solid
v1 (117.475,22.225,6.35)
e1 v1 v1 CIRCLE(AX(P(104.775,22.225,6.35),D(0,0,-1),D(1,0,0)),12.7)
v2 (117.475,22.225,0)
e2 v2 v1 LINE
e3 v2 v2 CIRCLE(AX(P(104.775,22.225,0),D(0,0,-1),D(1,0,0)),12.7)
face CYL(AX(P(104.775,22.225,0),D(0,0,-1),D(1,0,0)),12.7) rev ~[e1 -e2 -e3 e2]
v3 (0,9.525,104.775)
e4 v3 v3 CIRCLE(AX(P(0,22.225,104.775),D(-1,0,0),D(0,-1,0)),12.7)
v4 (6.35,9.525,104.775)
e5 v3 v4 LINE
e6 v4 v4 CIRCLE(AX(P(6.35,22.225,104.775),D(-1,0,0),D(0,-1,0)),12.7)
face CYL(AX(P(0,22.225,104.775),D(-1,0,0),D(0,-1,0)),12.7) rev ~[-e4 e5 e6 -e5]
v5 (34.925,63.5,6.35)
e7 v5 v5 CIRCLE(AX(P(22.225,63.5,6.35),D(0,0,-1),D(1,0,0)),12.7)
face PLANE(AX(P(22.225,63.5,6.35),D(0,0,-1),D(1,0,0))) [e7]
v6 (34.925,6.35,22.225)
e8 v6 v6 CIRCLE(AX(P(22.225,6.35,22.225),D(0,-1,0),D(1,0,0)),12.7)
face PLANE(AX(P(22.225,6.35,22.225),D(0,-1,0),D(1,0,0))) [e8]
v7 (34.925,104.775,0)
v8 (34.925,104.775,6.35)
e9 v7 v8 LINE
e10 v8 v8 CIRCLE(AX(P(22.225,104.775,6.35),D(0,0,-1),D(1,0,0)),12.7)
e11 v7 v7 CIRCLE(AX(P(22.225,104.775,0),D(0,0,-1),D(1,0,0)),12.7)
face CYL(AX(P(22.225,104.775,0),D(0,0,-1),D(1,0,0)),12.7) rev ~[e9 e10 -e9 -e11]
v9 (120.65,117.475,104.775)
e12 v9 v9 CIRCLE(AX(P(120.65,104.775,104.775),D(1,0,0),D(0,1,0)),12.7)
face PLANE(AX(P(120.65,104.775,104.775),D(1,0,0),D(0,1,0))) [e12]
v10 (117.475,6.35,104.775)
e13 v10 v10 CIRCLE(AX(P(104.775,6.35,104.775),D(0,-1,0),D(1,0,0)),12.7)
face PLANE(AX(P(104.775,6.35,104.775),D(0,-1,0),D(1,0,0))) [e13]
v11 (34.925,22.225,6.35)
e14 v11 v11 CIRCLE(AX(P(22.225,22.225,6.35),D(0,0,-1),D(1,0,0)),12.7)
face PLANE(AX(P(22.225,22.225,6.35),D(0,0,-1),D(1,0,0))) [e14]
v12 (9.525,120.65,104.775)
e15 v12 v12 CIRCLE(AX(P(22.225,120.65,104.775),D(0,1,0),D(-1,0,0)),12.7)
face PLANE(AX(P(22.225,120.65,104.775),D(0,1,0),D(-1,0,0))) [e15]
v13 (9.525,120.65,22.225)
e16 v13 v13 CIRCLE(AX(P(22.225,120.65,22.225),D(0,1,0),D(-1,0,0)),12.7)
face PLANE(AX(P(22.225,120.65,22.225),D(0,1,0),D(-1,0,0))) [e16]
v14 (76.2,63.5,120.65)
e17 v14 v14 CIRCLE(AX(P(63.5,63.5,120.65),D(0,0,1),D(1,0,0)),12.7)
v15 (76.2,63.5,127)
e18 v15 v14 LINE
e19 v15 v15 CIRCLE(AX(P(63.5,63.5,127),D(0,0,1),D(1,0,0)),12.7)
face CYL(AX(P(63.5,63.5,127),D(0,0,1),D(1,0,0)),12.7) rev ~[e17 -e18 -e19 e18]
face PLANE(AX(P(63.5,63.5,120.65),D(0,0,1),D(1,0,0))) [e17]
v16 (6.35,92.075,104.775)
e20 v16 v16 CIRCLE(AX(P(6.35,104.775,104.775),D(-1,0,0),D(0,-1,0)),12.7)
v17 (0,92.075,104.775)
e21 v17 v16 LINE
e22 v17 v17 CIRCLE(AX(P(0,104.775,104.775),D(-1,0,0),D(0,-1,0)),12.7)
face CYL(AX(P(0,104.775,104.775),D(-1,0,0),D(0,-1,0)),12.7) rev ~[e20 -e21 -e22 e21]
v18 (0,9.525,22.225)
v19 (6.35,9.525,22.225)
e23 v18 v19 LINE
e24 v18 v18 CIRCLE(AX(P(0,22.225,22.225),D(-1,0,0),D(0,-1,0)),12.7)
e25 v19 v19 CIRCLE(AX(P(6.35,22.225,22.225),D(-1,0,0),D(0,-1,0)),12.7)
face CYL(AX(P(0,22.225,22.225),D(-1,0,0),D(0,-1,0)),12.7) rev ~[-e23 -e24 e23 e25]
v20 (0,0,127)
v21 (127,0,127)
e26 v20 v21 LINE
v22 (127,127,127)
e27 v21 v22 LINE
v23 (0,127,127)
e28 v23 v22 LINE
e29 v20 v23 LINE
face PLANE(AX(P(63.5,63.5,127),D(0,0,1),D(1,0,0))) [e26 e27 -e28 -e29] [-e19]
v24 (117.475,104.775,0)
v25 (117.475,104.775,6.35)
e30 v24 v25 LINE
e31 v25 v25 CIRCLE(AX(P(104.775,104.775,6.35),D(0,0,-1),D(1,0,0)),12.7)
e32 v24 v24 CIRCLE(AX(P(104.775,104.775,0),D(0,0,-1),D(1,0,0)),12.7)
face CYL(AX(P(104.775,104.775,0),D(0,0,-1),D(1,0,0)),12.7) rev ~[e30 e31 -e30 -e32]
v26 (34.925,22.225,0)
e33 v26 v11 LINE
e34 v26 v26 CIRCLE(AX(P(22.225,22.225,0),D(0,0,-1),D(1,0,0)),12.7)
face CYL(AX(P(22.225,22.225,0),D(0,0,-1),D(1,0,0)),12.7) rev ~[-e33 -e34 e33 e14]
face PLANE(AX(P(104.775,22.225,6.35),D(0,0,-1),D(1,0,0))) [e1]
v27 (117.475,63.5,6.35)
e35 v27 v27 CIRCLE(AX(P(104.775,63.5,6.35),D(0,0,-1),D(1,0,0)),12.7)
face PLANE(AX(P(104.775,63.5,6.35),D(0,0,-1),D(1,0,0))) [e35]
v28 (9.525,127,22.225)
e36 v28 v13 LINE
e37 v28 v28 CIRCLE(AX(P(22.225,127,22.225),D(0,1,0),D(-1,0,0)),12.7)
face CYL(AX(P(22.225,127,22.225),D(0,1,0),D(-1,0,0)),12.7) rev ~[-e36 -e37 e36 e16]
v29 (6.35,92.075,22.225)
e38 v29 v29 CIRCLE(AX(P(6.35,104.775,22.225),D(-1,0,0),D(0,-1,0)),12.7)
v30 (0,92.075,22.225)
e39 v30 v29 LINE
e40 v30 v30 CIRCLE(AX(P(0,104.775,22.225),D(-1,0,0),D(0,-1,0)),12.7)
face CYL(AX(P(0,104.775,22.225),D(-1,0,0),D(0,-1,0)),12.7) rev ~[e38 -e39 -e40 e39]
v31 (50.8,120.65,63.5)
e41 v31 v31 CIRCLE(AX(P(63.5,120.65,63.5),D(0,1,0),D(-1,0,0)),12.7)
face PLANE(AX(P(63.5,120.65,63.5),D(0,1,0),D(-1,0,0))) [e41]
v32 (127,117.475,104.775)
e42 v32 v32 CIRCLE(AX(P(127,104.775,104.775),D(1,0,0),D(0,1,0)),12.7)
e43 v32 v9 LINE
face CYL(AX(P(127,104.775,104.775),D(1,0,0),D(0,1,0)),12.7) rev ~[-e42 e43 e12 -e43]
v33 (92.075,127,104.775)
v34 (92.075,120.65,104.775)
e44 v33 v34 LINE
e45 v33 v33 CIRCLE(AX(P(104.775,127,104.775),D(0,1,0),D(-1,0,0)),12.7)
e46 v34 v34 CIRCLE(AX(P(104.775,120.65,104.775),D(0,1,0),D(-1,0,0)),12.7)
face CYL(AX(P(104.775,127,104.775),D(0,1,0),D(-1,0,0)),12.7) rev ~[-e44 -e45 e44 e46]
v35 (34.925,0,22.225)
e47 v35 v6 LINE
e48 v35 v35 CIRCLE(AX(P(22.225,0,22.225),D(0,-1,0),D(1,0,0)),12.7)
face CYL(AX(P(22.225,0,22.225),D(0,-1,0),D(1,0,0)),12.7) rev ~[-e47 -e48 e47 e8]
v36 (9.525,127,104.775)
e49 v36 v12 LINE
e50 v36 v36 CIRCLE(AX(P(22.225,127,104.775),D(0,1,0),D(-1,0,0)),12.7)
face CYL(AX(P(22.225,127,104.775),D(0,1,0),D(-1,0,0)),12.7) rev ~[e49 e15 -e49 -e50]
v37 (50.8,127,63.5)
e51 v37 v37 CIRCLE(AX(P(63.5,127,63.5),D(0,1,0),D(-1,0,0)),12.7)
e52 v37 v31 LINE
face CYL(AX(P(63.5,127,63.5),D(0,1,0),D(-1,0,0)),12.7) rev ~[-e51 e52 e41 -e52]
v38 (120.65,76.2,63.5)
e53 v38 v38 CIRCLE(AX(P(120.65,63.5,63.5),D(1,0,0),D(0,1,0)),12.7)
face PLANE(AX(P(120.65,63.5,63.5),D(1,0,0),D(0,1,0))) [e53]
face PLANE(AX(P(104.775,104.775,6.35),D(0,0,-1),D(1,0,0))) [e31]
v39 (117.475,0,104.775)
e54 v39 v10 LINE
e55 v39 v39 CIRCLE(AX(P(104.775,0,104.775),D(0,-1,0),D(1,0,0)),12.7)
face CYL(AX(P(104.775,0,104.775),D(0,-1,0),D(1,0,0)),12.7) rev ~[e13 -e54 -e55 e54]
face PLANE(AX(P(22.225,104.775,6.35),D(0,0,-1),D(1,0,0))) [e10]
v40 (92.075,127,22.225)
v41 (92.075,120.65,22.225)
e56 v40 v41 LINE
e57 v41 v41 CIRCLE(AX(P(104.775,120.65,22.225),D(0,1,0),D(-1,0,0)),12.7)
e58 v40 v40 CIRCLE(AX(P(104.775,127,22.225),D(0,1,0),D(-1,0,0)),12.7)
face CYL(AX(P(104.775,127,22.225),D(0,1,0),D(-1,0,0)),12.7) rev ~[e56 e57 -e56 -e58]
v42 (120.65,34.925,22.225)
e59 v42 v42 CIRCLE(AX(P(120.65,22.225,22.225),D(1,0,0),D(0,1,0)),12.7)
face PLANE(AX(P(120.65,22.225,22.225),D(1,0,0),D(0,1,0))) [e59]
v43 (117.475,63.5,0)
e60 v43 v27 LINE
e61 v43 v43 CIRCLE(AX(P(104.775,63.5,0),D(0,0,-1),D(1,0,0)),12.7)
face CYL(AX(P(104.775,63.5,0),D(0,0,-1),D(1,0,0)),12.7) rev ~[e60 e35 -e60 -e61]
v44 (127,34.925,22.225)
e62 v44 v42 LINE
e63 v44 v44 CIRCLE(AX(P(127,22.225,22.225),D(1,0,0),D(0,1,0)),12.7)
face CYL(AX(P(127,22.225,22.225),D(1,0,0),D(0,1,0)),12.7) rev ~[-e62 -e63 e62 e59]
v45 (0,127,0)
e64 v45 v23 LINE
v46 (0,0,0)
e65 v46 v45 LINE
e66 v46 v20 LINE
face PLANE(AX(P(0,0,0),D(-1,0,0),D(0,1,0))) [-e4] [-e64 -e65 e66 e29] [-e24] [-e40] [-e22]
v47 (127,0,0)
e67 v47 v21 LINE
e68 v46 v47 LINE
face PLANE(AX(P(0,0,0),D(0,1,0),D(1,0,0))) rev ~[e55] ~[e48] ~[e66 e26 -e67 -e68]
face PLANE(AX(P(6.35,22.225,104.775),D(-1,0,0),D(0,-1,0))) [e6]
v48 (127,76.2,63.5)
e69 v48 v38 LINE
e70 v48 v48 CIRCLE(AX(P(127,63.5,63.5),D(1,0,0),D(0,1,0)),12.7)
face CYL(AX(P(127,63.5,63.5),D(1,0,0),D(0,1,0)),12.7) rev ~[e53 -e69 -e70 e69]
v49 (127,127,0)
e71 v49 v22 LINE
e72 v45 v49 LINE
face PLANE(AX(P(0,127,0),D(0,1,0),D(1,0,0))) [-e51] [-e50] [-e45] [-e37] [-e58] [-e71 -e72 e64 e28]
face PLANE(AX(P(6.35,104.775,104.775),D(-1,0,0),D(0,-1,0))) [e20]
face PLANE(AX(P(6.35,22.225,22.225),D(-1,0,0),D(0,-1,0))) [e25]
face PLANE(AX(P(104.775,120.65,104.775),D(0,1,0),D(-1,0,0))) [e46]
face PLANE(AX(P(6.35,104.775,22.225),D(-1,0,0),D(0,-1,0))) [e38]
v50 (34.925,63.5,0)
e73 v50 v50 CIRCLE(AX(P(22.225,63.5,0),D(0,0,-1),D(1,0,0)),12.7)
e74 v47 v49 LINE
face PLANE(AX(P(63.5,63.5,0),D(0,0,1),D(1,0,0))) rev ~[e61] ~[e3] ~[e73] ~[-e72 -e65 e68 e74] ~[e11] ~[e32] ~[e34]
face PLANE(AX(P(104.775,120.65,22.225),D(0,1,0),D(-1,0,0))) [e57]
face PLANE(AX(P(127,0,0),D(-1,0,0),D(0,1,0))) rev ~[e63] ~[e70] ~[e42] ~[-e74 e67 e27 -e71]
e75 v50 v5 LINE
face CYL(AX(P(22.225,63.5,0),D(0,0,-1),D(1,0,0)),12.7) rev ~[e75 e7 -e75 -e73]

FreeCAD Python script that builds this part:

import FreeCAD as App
import Part
import Sketcher

V = App.Vector
Q = App.Units.Quantity


def add_polygon(sketch, points):
    """Adds a closed chain of lines whose ends are joined by coincident constraints."""
    first, n = sketch.GeometryCount, len(points)
    for a, b in zip(points, points[1:] + points[:1]):
        sketch.addGeometry(Part.LineSegment(App.Vector(*a, 0), App.Vector(*b, 0)), False)
    for i in range(n):
        sketch.addConstraint(Sketcher.Constraint("Coincident", first + i, 2, first + (i + 1) % n, 1))

doc = App.newDocument("Part")
body = doc.addObject("PartDesign::Body", "Body")

# Sketch on XY plane
sketch1 = doc.addObject("Sketcher::SketchObject", "Sketch")
body.addObject(sketch1)
sketch1.AttachmentSupport = (doc.XY_Plane, [""])
sketch1.MapMode = "FlatFace"
add_polygon(sketch1, [(0, 127), (0, 0), (127, 0), (127, 127)])  # lines 0-3
sketch1.addConstraint([
    Sketcher.Constraint("Vertical", 0),
    Sketcher.Constraint("Horizontal", 1),
    Sketcher.Constraint("Vertical", 2),
    Sketcher.Constraint("Horizontal", 3),
    Sketcher.Constraint("Coincident", 0, 2, -1, 1),
    Sketcher.Constraint("Equal", 3, 0),
    Sketcher.Constraint("DistanceX", 1, 1, 1, 2, Q("5 in")),
])
pad1 = doc.addObject("PartDesign::Pad", "Pad")
body.addObject(pad1)
pad1.Profile = sketch1
pad1.Length = Q("5 in")

# Sketch on XY plane
sketch2 = doc.addObject("Sketcher::SketchObject", "Sketch001")
body.addObject(sketch2)
sketch2.AttachmentSupport = (doc.XY_Plane, [""])
sketch2.MapMode = "FlatFace"
sketch2.AttachmentOffset = App.Placement(V(0, 0, 5 * 25.4), App.Rotation())
sketch2.addGeometry(Part.Circle(V(64, 64, 0), V(0, 0, 1), 13), False)
sketch2.addConstraint([
    Sketcher.Constraint("Diameter", 0, Q("1 in")),
    Sketcher.Constraint("DistanceX", -1, 1, 0, 3, Q("2.5 in")),
    Sketcher.Constraint("DistanceY", -1, 1, 0, 3, Q("2.5 in")),
])
pocket1 = doc.addObject("PartDesign::Pocket", "Pocket")
body.addObject(pocket1)
pocket1.Profile = sketch2
pocket1.Length = Q("0.25 in")

# Sketch on XZ plane
sketch3 = doc.addObject("Sketcher::SketchObject", "Sketch002")
body.addObject(sketch3)
sketch3.AttachmentSupport = (doc.XZ_Plane, [""])
sketch3.MapMode = "FlatFace"
sketch3.addGeometry([
    Part.Circle(V(22, 22, 0), V(0, 0, 1), 13),
    Part.Circle(V(105, 105, 0), V(0, 0, 1), 13),
], False)
sketch3.addConstraint([
    Sketcher.Constraint("Equal", 0, 1),
    Sketcher.Constraint("Diameter", 0, Q("1 in")),
    Sketcher.Constraint("DistanceX", 0, 3, 1, 3, Q("3.25 in")),
    Sketcher.Constraint("DistanceY", 0, 3, 1, 3, Q("3.25 in")),
    Sketcher.Constraint("DistanceX", -1, 1, 0, 3, Q("0.875 in")),
    Sketcher.Constraint("DistanceY", -1, 1, 0, 3, Q("0.875 in")),
])
pocket2 = doc.addObject("PartDesign::Pocket", "Pocket001")
body.addObject(pocket2)
pocket2.Profile = sketch3
pocket2.Length = Q("0.25 in")

# Sketch on YZ plane
sketch4 = doc.addObject("Sketcher::SketchObject", "Sketch003")
body.addObject(sketch4)
sketch4.AttachmentSupport = (doc.YZ_Plane, [""])
sketch4.MapMode = "FlatFace"
sketch4.AttachmentOffset = App.Placement(V(0, 0, 5 * 25.4), App.Rotation())
sketch4.addGeometry([
    Part.Circle(V(22, 22, 0), V(0, 0, 1), 13),
    Part.Circle(V(64, 64, 0), V(0, 0, 1), 13),
    Part.Circle(V(105, 105, 0), V(0, 0, 1), 13),
], False)
sketch4.addConstraint([
    Sketcher.Constraint("Equal", 0, 1),
    Sketcher.Constraint("Equal", 1, 2),
    Sketcher.Constraint("Diameter", 0, Q("1 in")),
    Sketcher.Constraint("DistanceX", -1, 1, 1, 3, Q("2.5 in")),
    Sketcher.Constraint("DistanceY", -1, 1, 1, 3, Q("2.5 in")),
    Sketcher.Constraint("DistanceX", 0, 3, 2, 3, Q("3.25 in")),
    Sketcher.Constraint("DistanceY", 0, 3, 2, 3, Q("3.25 in")),
    Sketcher.Constraint("DistanceX", -1, 1, 0, 3, Q("0.875 in")),
    Sketcher.Constraint("DistanceY", -1, 1, 0, 3, Q("0.875 in")),
])
pocket3 = doc.addObject("PartDesign::Pocket", "Pocket002")
body.addObject(pocket3)
pocket3.Profile = sketch4
pocket3.Length = Q("0.25 in")

# Sketch on XZ plane
sketch5 = doc.addObject("Sketcher::SketchObject", "Sketch004")
body.addObject(sketch5)
sketch5.AttachmentSupport = (doc.XZ_Plane, [""])
sketch5.MapMode = "FlatFace"
sketch5.AttachmentOffset = App.Placement(V(0, 0, -5 * 25.4), App.Rotation())
sketch5.addGeometry([
    Part.Circle(V(64, 64, 0), V(0, 0, 1), 13),  # 0
    Part.Circle(V(22, 105, 0), V(0, 0, 1), 13),  # 1
    Part.Circle(V(105, 105, 0), V(0, 0, 1), 13),  # 2
    Part.Circle(V(105, 22, 0), V(0, 0, 1), 13),  # 3
    Part.Circle(V(22, 22, 0), V(0, 0, 1), 13),  # 4
], False)
sketch5.addConstraint([
    Sketcher.Constraint("Equal", 0, 1),
    Sketcher.Constraint("Equal", 1, 2),
    Sketcher.Constraint("Equal", 2, 3),
    Sketcher.Constraint("Equal", 3, 4),
    Sketcher.Constraint("Horizontal", 1, 3, 2, 3),
    Sketcher.Constraint("Horizontal", 3, 3, 4, 3),
    Sketcher.Constraint("Vertical", 2, 3, 3, 3),
    Sketcher.Constraint("Vertical", 1, 3, 4, 3),
    Sketcher.Constraint("Diameter", 0, Q("1 in")),
    Sketcher.Constraint("DistanceX", -1, 1, 0, 3, Q("2.5 in")),
    Sketcher.Constraint("DistanceY", -1, 1, 0, 3, Q("2.5 in")),
    Sketcher.Constraint("DistanceX", 1, 3, 2, 3, Q("3.25 in")),
    Sketcher.Constraint("DistanceY", 3, 3, 2, 3, Q("3.25 in")),
    Sketcher.Constraint("DistanceX", -1, 1, 1, 3, Q("0.875 in")),
    Sketcher.Constraint("DistanceY", -1, 1, 1, 3, Q("4.125 in")),
])
pocket4 = doc.addObject("PartDesign::Pocket", "Pocket003")
body.addObject(pocket4)
pocket4.Profile = sketch5
pocket4.Length = Q("0.25 in")
pocket4.Reversed = True

# Sketch on YZ plane
sketch6 = doc.addObject("Sketcher::SketchObject", "Sketch005")
body.addObject(sketch6)
sketch6.AttachmentSupport = (doc.YZ_Plane, [""])
sketch6.MapMode = "FlatFace"
sketch6.addGeometry([
    Part.Circle(V(105, 105, 0), V(0, 0, 1), 13),
    Part.Circle(V(22, 105, 0), V(0, 0, 1), 13),
    Part.Circle(V(22, 22, 0), V(0, 0, 1), 13),
    Part.Circle(V(105, 22, 0), V(0, 0, 1), 13),
], False)
sketch6.addConstraint([
    Sketcher.Constraint("Equal", 0, 1),
    Sketcher.Constraint("Equal", 1, 2),
    Sketcher.Constraint("Equal", 2, 3),
    Sketcher.Constraint("Horizontal", 0, 3, 1, 3),
    Sketcher.Constraint("Horizontal", 2, 3, 3, 3),
    Sketcher.Constraint("Vertical", 1, 3, 2, 3),
    Sketcher.Constraint("Vertical", 0, 3, 3, 3),
    Sketcher.Constraint("Diameter", 0, Q("1 in")),
    Sketcher.Constraint("DistanceX", 1, 3, 0, 3, Q("3.25 in")),
    Sketcher.Constraint("DistanceY", 2, 3, 1, 3, Q("3.25 in")),
    Sketcher.Constraint("DistanceX", -1, 1, 0, 3, Q("4.125 in")),
    Sketcher.Constraint("DistanceY", -1, 1, 0, 3, Q("4.125 in")),
])
pocket5 = doc.addObject("PartDesign::Pocket", "Pocket004")
body.addObject(pocket5)
pocket5.Profile = sketch6
pocket5.Length = Q("0.25 in")
pocket5.Reversed = True

# Sketch on XY plane
sketch7 = doc.addObject("Sketcher::SketchObject", "Sketch006")
body.addObject(sketch7)
sketch7.AttachmentSupport = (doc.XY_Plane, [""])
sketch7.MapMode = "FlatFace"
sketch7.addGeometry([
    Part.Circle(V(105, 22, 0), V(0, 0, 1), 13),  # 0
    Part.Circle(V(105, 64, 0), V(0, 0, 1), 13),  # 1
    Part.Circle(V(105, 105, 0), V(0, 0, 1), 13),  # 2
    Part.Circle(V(22, 105, 0), V(0, 0, 1), 13),  # 3
    Part.Circle(V(22, 64, 0), V(0, 0, 1), 13),  # 4
    Part.Circle(V(22, 22, 0), V(0, 0, 1), 13),  # 5
], False)
sketch7.addConstraint([
    Sketcher.Constraint("Equal", 0, 1),
    Sketcher.Constraint("Equal", 1, 2),
    Sketcher.Constraint("Equal", 2, 3),
    Sketcher.Constraint("Equal", 3, 4),
    Sketcher.Constraint("Equal", 4, 5),
    Sketcher.Constraint("Horizontal", 2, 3, 3, 3),
    Sketcher.Constraint("Horizontal", 1, 3, 4, 3),
    Sketcher.Constraint("Horizontal", 0, 3, 5, 3),
    Sketcher.Constraint("Vertical", 0, 3, 1, 3),
    Sketcher.Constraint("Vertical", 1, 3, 2, 3),
    Sketcher.Constraint("Vertical", 3, 3, 4, 3),
    Sketcher.Constraint("Vertical", 4, 3, 5, 3),
    Sketcher.Constraint("Diameter", 0, Q("1 in")),
    Sketcher.Constraint("DistanceY", -1, 1, 1, 3, Q("2.5 in")),
    Sketcher.Constraint("DistanceY", 0, 3, 2, 3, Q("3.25 in")),
    Sketcher.Constraint("DistanceX", 3, 3, 2, 3, Q("3.25 in")),
    Sketcher.Constraint("DistanceX", -1, 1, 0, 3, Q("4.125 in")),
    Sketcher.Constraint("DistanceY", -1, 1, 0, 3, Q("0.875 in")),
])
pocket6 = doc.addObject("PartDesign::Pocket", "Pocket005")
body.addObject(pocket6)
pocket6.Profile = sketch7
pocket6.Length = Q("0.25 in")
pocket6.Reversed = True

doc.recompute()
